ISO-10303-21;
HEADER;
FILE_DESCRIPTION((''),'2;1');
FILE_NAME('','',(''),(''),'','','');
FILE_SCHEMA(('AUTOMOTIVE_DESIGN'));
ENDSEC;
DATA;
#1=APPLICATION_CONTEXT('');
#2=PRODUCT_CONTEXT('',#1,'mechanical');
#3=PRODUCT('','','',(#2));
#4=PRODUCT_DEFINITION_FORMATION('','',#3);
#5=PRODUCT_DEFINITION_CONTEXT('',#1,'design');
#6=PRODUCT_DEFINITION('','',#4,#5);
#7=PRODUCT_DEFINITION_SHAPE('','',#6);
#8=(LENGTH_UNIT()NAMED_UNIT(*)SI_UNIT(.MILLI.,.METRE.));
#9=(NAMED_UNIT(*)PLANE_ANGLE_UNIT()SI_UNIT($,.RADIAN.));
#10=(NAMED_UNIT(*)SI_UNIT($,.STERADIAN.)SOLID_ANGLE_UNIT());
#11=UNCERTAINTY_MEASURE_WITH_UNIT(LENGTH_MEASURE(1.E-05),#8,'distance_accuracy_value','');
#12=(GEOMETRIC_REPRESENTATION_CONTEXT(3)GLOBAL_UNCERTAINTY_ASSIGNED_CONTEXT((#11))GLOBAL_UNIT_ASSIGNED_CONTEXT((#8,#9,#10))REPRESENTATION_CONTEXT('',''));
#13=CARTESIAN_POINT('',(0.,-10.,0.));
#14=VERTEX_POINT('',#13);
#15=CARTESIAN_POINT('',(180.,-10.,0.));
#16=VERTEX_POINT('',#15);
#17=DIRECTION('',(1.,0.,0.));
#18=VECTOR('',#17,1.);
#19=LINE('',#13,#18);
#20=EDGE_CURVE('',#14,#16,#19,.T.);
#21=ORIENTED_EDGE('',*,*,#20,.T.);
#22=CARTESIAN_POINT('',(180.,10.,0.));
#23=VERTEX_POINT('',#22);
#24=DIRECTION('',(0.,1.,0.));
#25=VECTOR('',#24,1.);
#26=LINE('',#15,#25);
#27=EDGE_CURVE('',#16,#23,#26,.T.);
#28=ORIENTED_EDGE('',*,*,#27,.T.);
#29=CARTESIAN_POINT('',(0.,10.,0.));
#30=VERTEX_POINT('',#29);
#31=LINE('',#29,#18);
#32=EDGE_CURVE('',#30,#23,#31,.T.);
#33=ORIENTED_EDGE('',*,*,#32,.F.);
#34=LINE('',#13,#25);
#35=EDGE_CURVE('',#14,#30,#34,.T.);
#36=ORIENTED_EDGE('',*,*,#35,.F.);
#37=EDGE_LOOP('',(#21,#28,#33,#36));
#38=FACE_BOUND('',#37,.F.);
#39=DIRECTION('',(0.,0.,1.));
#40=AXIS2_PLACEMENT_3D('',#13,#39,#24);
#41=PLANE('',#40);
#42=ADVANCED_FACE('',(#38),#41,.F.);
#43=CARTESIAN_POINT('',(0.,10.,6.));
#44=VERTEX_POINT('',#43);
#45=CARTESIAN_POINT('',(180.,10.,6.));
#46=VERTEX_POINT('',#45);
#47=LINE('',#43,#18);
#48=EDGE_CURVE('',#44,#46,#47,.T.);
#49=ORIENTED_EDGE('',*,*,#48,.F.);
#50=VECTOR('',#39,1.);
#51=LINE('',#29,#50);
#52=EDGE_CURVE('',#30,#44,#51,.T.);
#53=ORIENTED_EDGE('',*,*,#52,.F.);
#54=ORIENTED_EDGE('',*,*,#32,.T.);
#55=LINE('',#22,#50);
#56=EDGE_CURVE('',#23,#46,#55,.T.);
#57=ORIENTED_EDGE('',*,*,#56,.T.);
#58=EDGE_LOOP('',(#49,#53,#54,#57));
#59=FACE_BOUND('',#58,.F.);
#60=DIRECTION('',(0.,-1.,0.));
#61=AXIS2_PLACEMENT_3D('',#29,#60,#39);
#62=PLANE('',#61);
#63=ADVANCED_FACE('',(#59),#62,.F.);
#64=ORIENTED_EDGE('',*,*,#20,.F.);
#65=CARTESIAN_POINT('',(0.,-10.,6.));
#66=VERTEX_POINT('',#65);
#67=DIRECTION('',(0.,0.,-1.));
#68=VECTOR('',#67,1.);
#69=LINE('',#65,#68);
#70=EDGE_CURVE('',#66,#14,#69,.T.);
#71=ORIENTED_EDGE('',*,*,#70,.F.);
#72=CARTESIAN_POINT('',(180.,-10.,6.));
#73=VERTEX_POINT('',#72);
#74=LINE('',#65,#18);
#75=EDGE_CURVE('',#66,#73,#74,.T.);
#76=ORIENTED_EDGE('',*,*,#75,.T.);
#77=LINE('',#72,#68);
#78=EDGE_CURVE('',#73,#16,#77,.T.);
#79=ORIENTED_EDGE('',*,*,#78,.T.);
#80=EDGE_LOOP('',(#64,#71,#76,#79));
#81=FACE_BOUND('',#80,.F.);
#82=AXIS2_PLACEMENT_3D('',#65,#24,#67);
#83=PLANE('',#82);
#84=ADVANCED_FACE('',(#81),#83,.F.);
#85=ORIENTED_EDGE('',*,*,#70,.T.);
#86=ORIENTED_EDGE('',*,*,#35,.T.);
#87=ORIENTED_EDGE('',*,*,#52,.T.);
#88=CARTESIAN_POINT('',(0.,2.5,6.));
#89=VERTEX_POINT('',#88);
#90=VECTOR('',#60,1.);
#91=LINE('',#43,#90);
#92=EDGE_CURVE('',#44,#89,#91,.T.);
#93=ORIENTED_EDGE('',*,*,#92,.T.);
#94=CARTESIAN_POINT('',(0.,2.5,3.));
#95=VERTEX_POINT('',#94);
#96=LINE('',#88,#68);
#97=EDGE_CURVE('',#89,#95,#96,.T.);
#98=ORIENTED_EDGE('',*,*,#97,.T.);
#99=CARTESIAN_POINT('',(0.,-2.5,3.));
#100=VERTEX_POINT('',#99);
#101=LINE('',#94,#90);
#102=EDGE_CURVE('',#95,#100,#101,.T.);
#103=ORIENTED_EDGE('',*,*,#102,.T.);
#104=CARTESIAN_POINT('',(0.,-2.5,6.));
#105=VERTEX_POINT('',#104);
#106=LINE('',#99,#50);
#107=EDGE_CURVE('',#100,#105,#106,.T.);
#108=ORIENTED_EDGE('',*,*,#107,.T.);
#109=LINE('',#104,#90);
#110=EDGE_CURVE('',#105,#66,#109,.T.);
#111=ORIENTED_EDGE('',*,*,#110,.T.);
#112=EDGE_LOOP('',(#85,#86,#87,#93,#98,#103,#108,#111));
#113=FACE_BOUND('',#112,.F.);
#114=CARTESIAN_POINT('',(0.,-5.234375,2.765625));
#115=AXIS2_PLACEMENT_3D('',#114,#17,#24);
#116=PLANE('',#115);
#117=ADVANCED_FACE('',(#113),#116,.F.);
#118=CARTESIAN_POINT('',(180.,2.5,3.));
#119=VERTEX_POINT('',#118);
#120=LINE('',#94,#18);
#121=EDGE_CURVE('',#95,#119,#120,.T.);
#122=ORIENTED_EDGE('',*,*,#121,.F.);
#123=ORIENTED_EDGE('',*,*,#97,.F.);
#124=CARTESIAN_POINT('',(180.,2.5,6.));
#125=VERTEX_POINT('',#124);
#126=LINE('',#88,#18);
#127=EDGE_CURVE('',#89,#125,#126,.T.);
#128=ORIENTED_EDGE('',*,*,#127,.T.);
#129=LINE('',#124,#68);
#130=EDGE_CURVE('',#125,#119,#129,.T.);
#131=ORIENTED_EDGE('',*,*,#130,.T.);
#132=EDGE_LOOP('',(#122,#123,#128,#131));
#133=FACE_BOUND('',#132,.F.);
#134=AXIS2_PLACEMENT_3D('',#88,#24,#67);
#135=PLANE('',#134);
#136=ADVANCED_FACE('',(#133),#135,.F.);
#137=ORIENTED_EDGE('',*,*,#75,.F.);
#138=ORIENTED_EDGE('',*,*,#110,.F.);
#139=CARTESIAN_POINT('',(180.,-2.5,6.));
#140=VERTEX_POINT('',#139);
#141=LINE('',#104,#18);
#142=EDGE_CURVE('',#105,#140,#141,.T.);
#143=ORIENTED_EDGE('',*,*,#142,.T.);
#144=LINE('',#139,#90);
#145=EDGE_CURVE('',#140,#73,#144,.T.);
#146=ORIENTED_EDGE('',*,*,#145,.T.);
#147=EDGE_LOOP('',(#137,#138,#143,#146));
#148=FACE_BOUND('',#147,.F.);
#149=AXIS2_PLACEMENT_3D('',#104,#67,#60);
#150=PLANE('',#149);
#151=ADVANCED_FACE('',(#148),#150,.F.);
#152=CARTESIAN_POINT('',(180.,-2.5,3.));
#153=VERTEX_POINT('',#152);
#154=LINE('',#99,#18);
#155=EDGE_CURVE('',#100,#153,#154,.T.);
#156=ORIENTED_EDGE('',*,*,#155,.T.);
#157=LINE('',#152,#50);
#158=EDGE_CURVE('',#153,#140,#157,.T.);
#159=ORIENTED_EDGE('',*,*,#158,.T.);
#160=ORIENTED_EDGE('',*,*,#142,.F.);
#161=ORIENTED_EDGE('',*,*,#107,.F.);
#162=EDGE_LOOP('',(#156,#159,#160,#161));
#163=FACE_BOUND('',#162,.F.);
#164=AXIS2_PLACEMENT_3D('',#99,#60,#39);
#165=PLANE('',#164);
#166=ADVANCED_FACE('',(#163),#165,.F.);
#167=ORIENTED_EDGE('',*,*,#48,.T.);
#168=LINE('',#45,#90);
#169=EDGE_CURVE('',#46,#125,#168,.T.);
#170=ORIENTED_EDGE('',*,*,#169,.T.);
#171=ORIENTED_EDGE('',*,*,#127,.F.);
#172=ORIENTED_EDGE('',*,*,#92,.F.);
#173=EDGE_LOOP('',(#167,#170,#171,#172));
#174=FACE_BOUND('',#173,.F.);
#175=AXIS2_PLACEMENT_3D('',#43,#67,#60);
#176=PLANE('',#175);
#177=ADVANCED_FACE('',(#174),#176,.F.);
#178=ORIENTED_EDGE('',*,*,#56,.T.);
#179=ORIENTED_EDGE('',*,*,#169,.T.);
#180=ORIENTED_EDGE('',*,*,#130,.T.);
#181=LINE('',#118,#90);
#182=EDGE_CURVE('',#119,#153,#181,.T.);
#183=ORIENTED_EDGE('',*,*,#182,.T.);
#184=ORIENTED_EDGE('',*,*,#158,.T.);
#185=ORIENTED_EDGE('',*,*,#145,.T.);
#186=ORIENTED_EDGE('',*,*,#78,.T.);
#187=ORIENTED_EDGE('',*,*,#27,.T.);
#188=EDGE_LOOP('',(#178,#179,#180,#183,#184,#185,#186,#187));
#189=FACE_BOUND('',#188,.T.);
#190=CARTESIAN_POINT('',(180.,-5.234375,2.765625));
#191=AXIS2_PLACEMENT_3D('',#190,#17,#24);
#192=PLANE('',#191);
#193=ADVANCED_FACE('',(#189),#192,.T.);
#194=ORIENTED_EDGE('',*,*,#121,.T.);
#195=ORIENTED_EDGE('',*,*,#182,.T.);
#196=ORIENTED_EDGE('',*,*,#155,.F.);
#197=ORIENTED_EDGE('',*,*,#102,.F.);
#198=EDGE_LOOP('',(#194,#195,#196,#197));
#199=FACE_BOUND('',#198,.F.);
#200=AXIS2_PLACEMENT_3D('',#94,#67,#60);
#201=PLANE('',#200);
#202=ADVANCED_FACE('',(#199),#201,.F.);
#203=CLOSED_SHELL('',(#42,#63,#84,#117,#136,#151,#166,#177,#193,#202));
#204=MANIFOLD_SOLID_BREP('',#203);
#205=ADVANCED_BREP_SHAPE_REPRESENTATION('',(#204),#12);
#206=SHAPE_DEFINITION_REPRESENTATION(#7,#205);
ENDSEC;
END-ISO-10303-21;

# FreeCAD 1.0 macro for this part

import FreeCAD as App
import Part
import Sketcher

doc = App.newDocument("Part")
body = doc.addObject("PartDesign::Body", "Body")

sketch1 = body.newObject("Sketcher::SketchObject", "Sketch")
sketch1.AttachmentSupport = (doc.getObject("YZ_Plane"), [""])
sketch1.MapMode = "FlatFace"
sketch1.addGeometry(Part.LineSegment(App.Vector(-10, 0, 0), App.Vector(10, 0, 0)), False)
sketch1.addGeometry(Part.LineSegment(App.Vector(10, 0, 0), App.Vector(10, 6, 0)), False)
sketch1.addGeometry(Part.LineSegment(App.Vector(10, 6, 0), App.Vector(2.5, 6, 0)), False)
sketch1.addGeometry(Part.LineSegment(App.Vector(2.5, 6, 0), App.Vector(2.5, 3, 0)), False)
sketch1.addGeometry(Part.LineSegment(App.Vector(2.5, 3, 0), App.Vector(-2.5, 3, 0)), False)
sketch1.addGeometry(Part.LineSegment(App.Vector(-2.5, 3, 0), App.Vector(-2.5, 6, 0)), False)
sketch1.addGeometry(Part.LineSegment(App.Vector(-2.5, 6, 0), App.Vector(-10, 6, 0)), False)
sketch1.addGeometry(Part.LineSegment(App.Vector(-10, 6, 0), App.Vector(-10, 0, 0)), False)
sketch1.addConstraint(Sketcher.Constraint("Coincident", 0, 2, 1, 1))
sketch1.addConstraint(Sketcher.Constraint("Coincident", 1, 2, 2, 1))
sketch1.addConstraint(Sketcher.Constraint("Coincident", 2, 2, 3, 1))
sketch1.addConstraint(Sketcher.Constraint("Coincident", 3, 2, 4, 1))
sketch1.addConstraint(Sketcher.Constraint("Coincident", 4, 2, 5, 1))
sketch1.addConstraint(Sketcher.Constraint("Coincident", 5, 2, 6, 1))
sketch1.addConstraint(Sketcher.Constraint("Coincident", 6, 2, 7, 1))
sketch1.addConstraint(Sketcher.Constraint("Coincident", 7, 2, 0, 1))
sketch1.addConstraint(Sketcher.Constraint("Horizontal", 0))
sketch1.addConstraint(Sketcher.Constraint("Vertical", 1))
sketch1.addConstraint(Sketcher.Constraint("Horizontal", 2))
sketch1.addConstraint(Sketcher.Constraint("Vertical", 3))
sketch1.addConstraint(Sketcher.Constraint("Horizontal", 4))
sketch1.addConstraint(Sketcher.Constraint("Vertical", 5))
sketch1.addConstraint(Sketcher.Constraint("Horizontal", 6))
sketch1.addConstraint(Sketcher.Constraint("Vertical", 7))
sketch1.addConstraint(Sketcher.Constraint("Symmetric", 0, 2, 7, 2, -1, 1))
sketch1.addConstraint(Sketcher.Constraint("Symmetric", 2, 2, 5, 2, -2))
sketch1.addConstraint(Sketcher.Constraint("DistanceX", 0, 1, 0, 2, 20.0))
sketch1.addConstraint(Sketcher.Constraint("DistanceX", 4, 2, 4, 1, 5.0))
sketch1.addConstraint(Sketcher.Constraint("DistanceY", 1, 1, 1, 2, 6.0))
sketch1.addConstraint(Sketcher.Constraint("DistanceY", 3, 2, 3, 1, 3.0))
pad1 = body.newObject("PartDesign::Pad", "Pad")
pad1.Profile = sketch1
pad1.Length = 180

doc.recompute()
